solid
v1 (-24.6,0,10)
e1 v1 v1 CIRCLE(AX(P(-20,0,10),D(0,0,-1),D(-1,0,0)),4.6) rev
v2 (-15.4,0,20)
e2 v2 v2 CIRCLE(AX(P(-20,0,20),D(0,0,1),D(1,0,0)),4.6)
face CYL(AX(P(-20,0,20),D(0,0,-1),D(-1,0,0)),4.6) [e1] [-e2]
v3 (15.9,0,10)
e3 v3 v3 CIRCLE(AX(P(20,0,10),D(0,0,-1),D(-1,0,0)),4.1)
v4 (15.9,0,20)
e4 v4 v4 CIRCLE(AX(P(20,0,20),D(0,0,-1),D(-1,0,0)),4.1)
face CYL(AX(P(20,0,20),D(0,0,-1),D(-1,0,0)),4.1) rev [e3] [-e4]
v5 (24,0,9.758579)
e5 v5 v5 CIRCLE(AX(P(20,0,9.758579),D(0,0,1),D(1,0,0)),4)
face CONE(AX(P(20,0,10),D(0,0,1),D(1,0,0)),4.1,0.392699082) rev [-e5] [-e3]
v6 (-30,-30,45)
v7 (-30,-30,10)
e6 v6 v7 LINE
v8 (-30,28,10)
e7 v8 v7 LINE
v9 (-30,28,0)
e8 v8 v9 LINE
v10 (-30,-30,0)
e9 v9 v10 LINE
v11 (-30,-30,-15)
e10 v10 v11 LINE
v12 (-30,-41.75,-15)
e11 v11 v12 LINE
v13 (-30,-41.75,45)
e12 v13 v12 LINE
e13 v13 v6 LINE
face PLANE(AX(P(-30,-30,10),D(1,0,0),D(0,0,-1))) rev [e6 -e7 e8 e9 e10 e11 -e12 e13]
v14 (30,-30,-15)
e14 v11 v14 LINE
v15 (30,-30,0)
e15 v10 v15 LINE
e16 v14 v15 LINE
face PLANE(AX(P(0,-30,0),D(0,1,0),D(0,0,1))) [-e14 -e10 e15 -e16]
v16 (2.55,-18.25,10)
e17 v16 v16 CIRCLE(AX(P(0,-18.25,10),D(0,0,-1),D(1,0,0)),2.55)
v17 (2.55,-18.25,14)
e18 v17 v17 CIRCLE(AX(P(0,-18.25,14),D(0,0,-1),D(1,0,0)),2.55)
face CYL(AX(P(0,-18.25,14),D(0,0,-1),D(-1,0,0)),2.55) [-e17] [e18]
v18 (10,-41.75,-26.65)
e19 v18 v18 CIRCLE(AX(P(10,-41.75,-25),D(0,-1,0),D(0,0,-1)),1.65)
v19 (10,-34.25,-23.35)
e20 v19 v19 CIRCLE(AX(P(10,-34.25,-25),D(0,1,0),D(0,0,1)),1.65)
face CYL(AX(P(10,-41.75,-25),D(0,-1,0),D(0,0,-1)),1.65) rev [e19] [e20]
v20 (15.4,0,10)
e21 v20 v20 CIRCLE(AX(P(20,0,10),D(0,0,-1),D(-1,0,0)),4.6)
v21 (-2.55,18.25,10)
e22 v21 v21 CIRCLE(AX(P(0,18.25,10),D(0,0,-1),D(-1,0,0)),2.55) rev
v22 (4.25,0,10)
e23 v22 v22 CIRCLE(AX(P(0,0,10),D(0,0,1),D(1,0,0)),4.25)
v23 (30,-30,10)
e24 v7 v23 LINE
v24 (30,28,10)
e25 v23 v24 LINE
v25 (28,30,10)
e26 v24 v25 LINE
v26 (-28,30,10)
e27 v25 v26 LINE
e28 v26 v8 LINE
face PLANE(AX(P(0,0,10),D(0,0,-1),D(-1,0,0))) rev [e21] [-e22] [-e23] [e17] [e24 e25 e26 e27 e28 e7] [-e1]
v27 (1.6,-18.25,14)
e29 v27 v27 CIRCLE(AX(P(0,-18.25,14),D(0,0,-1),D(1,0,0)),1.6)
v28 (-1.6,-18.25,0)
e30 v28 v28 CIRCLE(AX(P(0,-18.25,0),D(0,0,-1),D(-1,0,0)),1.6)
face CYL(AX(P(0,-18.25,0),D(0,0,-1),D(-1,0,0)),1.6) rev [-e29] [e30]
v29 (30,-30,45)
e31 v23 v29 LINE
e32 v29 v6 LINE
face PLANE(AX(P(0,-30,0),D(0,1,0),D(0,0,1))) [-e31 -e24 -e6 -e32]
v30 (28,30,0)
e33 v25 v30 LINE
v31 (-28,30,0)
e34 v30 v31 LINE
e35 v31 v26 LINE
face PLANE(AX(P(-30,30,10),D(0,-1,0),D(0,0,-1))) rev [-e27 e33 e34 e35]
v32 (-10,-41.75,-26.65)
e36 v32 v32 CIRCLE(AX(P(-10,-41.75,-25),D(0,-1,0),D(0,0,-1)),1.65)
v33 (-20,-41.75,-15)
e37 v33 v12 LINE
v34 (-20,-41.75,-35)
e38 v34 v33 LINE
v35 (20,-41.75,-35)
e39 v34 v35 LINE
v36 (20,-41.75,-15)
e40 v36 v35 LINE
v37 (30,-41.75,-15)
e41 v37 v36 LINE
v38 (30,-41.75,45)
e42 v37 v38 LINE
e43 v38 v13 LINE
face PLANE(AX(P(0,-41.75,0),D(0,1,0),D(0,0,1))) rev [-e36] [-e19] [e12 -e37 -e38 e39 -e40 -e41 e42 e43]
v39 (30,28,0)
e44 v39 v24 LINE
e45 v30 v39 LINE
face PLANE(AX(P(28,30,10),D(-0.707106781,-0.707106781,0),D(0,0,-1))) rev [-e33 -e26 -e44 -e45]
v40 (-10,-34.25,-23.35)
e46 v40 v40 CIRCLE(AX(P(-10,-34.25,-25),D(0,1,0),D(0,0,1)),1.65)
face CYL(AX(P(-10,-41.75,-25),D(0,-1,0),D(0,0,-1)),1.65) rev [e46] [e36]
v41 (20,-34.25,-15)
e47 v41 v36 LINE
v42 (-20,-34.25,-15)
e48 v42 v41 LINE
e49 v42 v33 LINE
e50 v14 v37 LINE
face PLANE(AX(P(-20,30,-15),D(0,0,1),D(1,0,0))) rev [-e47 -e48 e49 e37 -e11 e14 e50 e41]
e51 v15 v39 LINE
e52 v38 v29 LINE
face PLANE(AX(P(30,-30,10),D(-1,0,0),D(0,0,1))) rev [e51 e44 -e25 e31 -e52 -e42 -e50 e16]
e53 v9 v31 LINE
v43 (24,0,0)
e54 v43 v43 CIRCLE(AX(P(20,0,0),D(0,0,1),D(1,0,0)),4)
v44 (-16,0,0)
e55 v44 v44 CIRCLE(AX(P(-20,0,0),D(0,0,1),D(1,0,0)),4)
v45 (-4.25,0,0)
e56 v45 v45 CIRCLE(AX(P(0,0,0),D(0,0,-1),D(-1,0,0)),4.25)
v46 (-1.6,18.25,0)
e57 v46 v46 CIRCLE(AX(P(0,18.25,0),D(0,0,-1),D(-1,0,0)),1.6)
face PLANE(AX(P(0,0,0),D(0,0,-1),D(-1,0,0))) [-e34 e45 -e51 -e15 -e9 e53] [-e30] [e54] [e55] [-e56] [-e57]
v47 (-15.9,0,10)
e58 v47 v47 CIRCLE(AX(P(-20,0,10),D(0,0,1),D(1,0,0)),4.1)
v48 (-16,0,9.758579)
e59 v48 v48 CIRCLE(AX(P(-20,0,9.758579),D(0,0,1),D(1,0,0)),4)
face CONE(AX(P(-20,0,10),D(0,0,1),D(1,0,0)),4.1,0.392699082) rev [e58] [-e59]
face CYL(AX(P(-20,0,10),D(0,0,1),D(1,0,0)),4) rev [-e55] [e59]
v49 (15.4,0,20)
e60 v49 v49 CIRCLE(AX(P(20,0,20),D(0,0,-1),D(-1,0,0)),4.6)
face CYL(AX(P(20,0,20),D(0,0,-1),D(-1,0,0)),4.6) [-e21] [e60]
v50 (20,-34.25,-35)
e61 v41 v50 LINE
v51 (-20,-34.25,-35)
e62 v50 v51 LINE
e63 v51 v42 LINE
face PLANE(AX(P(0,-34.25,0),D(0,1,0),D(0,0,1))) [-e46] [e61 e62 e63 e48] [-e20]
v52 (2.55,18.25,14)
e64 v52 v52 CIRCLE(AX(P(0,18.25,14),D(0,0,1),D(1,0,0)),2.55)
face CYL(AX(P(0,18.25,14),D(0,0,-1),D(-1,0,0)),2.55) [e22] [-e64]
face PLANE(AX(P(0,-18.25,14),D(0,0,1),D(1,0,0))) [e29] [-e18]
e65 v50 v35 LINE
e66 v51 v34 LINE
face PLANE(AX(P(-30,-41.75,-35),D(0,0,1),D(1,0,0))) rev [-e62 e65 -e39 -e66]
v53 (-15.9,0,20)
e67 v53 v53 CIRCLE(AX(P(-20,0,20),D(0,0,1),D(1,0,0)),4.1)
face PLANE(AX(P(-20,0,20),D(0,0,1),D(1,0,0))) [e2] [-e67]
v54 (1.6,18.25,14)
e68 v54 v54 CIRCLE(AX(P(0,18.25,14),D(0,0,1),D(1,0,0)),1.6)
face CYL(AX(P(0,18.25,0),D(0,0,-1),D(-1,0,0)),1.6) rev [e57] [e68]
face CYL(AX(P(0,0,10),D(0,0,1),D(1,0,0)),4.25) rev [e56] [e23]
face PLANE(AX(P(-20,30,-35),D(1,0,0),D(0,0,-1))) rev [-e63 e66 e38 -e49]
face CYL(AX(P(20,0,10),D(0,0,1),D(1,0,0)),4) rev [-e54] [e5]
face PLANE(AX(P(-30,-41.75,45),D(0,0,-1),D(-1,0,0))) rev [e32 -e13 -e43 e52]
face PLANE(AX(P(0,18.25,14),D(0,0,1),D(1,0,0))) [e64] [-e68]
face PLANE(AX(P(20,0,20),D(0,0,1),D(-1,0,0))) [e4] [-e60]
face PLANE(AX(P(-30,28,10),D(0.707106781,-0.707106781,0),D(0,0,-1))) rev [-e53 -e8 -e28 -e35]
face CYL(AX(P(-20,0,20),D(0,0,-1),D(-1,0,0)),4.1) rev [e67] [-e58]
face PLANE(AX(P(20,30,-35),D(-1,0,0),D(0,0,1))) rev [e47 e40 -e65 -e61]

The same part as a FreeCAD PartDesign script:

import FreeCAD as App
import Part
import Sketcher
from FreeCAD import Vector


def edges_at(feature, points):
    """Names of the edges that pass closest to the given points."""
    edges = feature.Shape.Edges
    near = lambda p: min(range(len(edges)), key=lambda i: edges[i].distToShape(Part.Vertex(*p))[0])
    return sorted({f"Edge{near(p) + 1}" for p in points})

doc = App.newDocument("Part")
body = doc.addObject("PartDesign::Body", "Body")

# Sketch on XY plane
sketch1 = doc.addObject("Sketcher::SketchObject", "Sketch")
body.addObject(sketch1)
sketch1.AttachmentSupport = (doc.XY_Plane, [""])
sketch1.MapMode = "FlatFace"
sketch1.addGeometry([
    Part.LineSegment(Vector(-30, 30, 0), Vector(-30, -30, 0)),
    Part.LineSegment(Vector(-30, -30, 0), Vector(30, -30, 0)),
    Part.LineSegment(Vector(30, -30, 0), Vector(30, 30, 0)),
    Part.LineSegment(Vector(30, 30, 0), Vector(-30, 30, 0)),
], False)
sketch1.addConstraint([
    Sketcher.Constraint("Coincident", 0, 2, 1, 1),
    Sketcher.Constraint("Coincident", 1, 2, 2, 1),
    Sketcher.Constraint("Coincident", 2, 2, 3, 1),
    Sketcher.Constraint("Coincident", 3, 2, 0, 1),
    Sketcher.Constraint("Vertical", 0),
    Sketcher.Constraint("Horizontal", 1),
    Sketcher.Constraint("Vertical", 2),
    Sketcher.Constraint("Horizontal", 3),
    Sketcher.Constraint("Symmetric", 0, 2, 2, 2, -1, 1),
    Sketcher.Constraint("Equal", 3, 0),
    Sketcher.Constraint("DistanceX", 1, 1, 1, 2, 60.0),
])
pad1 = doc.addObject("PartDesign::Pad", "Pad")
body.addObject(pad1)
pad1.Profile = sketch1
pad1.Length = 10

# Sketch on XY plane
sketch2 = doc.addObject("Sketcher::SketchObject", "Sketch001")
body.addObject(sketch2)
sketch2.AttachmentSupport = (doc.XY_Plane, [""])
sketch2.MapMode = "FlatFace"
sketch2.AttachmentOffset = App.Placement(Vector(0, 0, 10), App.Rotation())
sketch2.addGeometry(Part.Circle(Vector(0, 0, 0), Vector(0, 0, 1), 4.2), False)
sketch2.addConstraint([
    Sketcher.Constraint("Coincident", 0, 3, -1, 1),
    Sketcher.Constraint("Diameter", 0, 8.5),
])
doc.recompute()
hole = doc.addObject("PartDesign::Hole", "Hole")
body.addObject(hole)
hole.Profile = sketch2
hole.ThreadType = "None"
hole.Diameter = 8.5
hole.DepthType = "Dimension"
hole.Depth = 20
hole.DrillPoint = "Flat"

# Sketch on XY plane
sketch3 = doc.addObject("Sketcher::SketchObject", "Sketch002")
body.addObject(sketch3)
sketch3.AttachmentSupport = (doc.XY_Plane, [""])
sketch3.MapMode = "FlatFace"
sketch3.AttachmentOffset = App.Placement(Vector(0, 0, 10), App.Rotation())
sketch3.addGeometry([
    Part.Circle(Vector(20, 0, 0), Vector(0, 0, 1), 4),
    Part.Circle(Vector(-20, 0, 0), Vector(0, 0, 1), 4),
], False)
sketch3.addConstraint([
    Sketcher.Constraint("Equal", 0, 1),
    Sketcher.Constraint("Symmetric", 0, 3, 1, 3, -1, 1),
    Sketcher.Constraint("PointOnObject", 0, 3, -1),
    Sketcher.Constraint("Diameter", 0, 8.0),
    Sketcher.Constraint("DistanceX", -1, 1, 0, 3, 20.0),
])
doc.recompute()
hole2 = doc.addObject("PartDesign::Hole", "Hole001")
body.addObject(hole2)
hole2.Profile = sketch3
hole2.ThreadType = "None"
hole2.Diameter = 8
hole2.DepthType = "ThroughAll"
hole2.HoleCutType = "Countersink"
hole2.HoleCutDiameter = 8.2
hole2.HoleCutCountersinkAngle = 45

# Sketch on XY plane
sketch4 = doc.addObject("Sketcher::SketchObject", "Sketch003")
body.addObject(sketch4)
sketch4.AttachmentSupport = (doc.XY_Plane, [""])
sketch4.MapMode = "FlatFace"
sketch4.addGeometry([
    Part.Circle(Vector(0, 18.2, 0), Vector(0, 0, 1), 1.6),
    Part.Circle(Vector(0, -18.2, 0), Vector(0, 0, 1), 1.6),
], False)
sketch4.addConstraint([
    Sketcher.Constraint("Equal", 0, 1),
    Sketcher.Constraint("Symmetric", 0, 3, 1, 3, -1, 1),
    Sketcher.Constraint("PointOnObject", 0, 3, -2),
    Sketcher.Constraint("Diameter", 0, 3.2),
    Sketcher.Constraint("DistanceY", 1, 3, 0, 3, 36.5),
])
doc.recompute()
hole3 = doc.addObject("PartDesign::Hole", "Hole002")
body.addObject(hole3)
hole3.Profile = sketch4
hole3.ThreadType = "None"
hole3.Diameter = 3.2
hole3.DepthType = "ThroughAll"
hole3.Reversed = True

# Sketch on XY plane
sketch5 = doc.addObject("Sketcher::SketchObject", "Sketch004")
body.addObject(sketch5)
sketch5.AttachmentSupport = (doc.XY_Plane, [""])
sketch5.MapMode = "FlatFace"
sketch5.AttachmentOffset = App.Placement(Vector(0, 0, 10), App.Rotation())
sketch5.addGeometry([
    Part.Circle(Vector(-20, 0, 0), Vector(0, 0, 1), 4.6),
    Part.Circle(Vector(-20, 0, 0), Vector(0, 0, 1), 4.1),
], False)
sketch5.addConstraint([
    Sketcher.Constraint("Coincident", 1, 3, 0, 3),
    Sketcher.Constraint("PointOnObject", 0, 3, -1),
    Sketcher.Constraint("Diameter", 0, 9.2),
    Sketcher.Constraint("Diameter", 1, 8.2),
    Sketcher.Constraint("DistanceX", 0, 3, -1, 1, 20.0),
])
pad2 = doc.addObject("PartDesign::Pad", "Pad001")
body.addObject(pad2)
pad2.Profile = sketch5
pad2.Length = 10
doc.recompute()

mirrored = doc.addObject("PartDesign::Mirrored", "Mirrored")
body.addObject(mirrored)
mirrored.Originals = [pad2]
mirrored.MirrorPlane = (doc.YZ_Plane, [""])
body.Tip = mirrored

# Sketch on XY plane
sketch6 = doc.addObject("Sketcher::SketchObject", "Sketch005")
body.addObject(sketch6)
sketch6.AttachmentSupport = (doc.XY_Plane, [""])
sketch6.MapMode = "FlatFace"
sketch6.AttachmentOffset = App.Placement(Vector(0, 0, 14), App.Rotation())
sketch6.addGeometry([
    Part.Circle(Vector(0, 18.2, 0), Vector(0, 0, 1), 2.5),
    Part.Circle(Vector(0, 18.2, 0), Vector(0, 0, 1), 1.6),
], False)
sketch6.addConstraint([
    Sketcher.Constraint("Coincident", 1, 3, 0, 3),
    Sketcher.Constraint("PointOnObject", 0, 3, -2),
    Sketcher.Constraint("Diameter", 0, 5.1),
    Sketcher.Constraint("Diameter", 1, 3.2),
    Sketcher.Constraint("DistanceY", -1, 1, 0, 3, 18.25),
])
pad3 = doc.addObject("PartDesign::Pad", "Pad002")
body.addObject(pad3)
pad3.Profile = sketch6
pad3.Length = 4
pad3.Reversed = True
doc.recompute()

mirrored2 = doc.addObject("PartDesign::Mirrored", "Mirrored001")
body.addObject(mirrored2)
mirrored2.Originals = [pad3]
mirrored2.MirrorPlane = (doc.XZ_Plane, [""])
body.Tip = mirrored2

# Sketch on XZ plane
sketch7 = doc.addObject("Sketcher::SketchObject", "Sketch006")
body.addObject(sketch7)
sketch7.AttachmentSupport = (doc.XZ_Plane, [""])
sketch7.MapMode = "FlatFace"
sketch7.AttachmentOffset = App.Placement(Vector(0, 0, 30), App.Rotation())
sketch7.addGeometry([
    Part.LineSegment(Vector(-30, 45, 0), Vector(-30, -35, 0)),
    Part.LineSegment(Vector(-30, -35, 0), Vector(30, -35, 0)),
    Part.LineSegment(Vector(30, -35, 0), Vector(30, 45, 0)),
    Part.LineSegment(Vector(30, 45, 0), Vector(-30, 45, 0)),
], False)
sketch7.addConstraint([
    Sketcher.Constraint("Coincident", 0, 2, 1, 1),
    Sketcher.Constraint("Coincident", 1, 2, 2, 1),
    Sketcher.Constraint("Coincident", 2, 2, 3, 1),
    Sketcher.Constraint("Coincident", 3, 2, 0, 1),
    Sketcher.Constraint("Vertical", 0),
    Sketcher.Constraint("Horizontal", 1),
    Sketcher.Constraint("Vertical", 2),
    Sketcher.Constraint("Horizontal", 3),
    Sketcher.Constraint("DistanceX", 1, 1, 1, 2, 60.0),
    Sketcher.Constraint("DistanceY", 0, 2, 0, 1, 80.0),
    Sketcher.Constraint("DistanceX", 0, 2, -1, 1, 30.0),
    Sketcher.Constraint("DistanceY", 0, 2, -1, 1, 35.0),
])
pad4 = doc.addObject("PartDesign::Pad", "Pad003")
body.addObject(pad4)
pad4.Profile = sketch7
pad4.Length = 11.75

# Sketch on XZ plane
sketch8 = doc.addObject("Sketcher::SketchObject", "Sketch007")
body.addObject(sketch8)
sketch8.AttachmentSupport = (doc.XZ_Plane, [""])
sketch8.MapMode = "FlatFace"
sketch8.AttachmentOffset = App.Placement(Vector(0, 0, 41.75), App.Rotation())
sketch8.addGeometry([
    Part.LineSegment(Vector(-30, -15, 0), Vector(-30, -35, 0)),  # 0
    Part.LineSegment(Vector(-30, -35, 0), Vector(-20, -35, 0)),  # 1
    Part.LineSegment(Vector(-20, -35, 0), Vector(-20, -15, 0)),  # 2
    Part.LineSegment(Vector(-20, -15, 0), Vector(-30, -15, 0)),  # 3
    Part.LineSegment(Vector(20, -15, 0), Vector(20, -35, 0)),  # 4
    Part.LineSegment(Vector(20, -35, 0), Vector(30, -35, 0)),  # 5
    Part.LineSegment(Vector(30, -35, 0), Vector(30, -15, 0)),  # 6
    Part.LineSegment(Vector(30, -15, 0), Vector(20, -15, 0)),  # 7
], False)
sketch8.addConstraint([
    Sketcher.Constraint("Coincident", 0, 2, 1, 1),
    Sketcher.Constraint("Coincident", 1, 2, 2, 1),
    Sketcher.Constraint("Coincident", 2, 2, 3, 1),
    Sketcher.Constraint("Coincident", 3, 2, 0, 1),
    Sketcher.Constraint("Coincident", 4, 2, 5, 1),
    Sketcher.Constraint("Coincident", 5, 2, 6, 1),
    Sketcher.Constraint("Coincident", 6, 2, 7, 1),
    Sketcher.Constraint("Coincident", 7, 2, 4, 1),
    Sketcher.Constraint("Vertical", 0),
    Sketcher.Constraint("Horizontal", 1),
    Sketcher.Constraint("Vertical", 2),
    Sketcher.Constraint("Horizontal", 3),
    Sketcher.Constraint("Vertical", 4),
    Sketcher.Constraint("Horizontal", 5),
    Sketcher.Constraint("Vertical", 6),
    Sketcher.Constraint("Horizontal", 7),
    Sketcher.Constraint("Symmetric", 1, 2, 4, 2, -2),
    Sketcher.Constraint("Symmetric", 3, 2, 6, 2, -2),
    Sketcher.Constraint("DistanceX", 1, 1, 1, 2, 10.0),
    Sketcher.Constraint("DistanceY", 0, 2, 0, 1, 20.0),
    Sketcher.Constraint("DistanceX", 0, 2, -1, 1, 30.0),
    Sketcher.Constraint("DistanceY", 0, 2, -1, 1, 35.0),
])
pocket1 = doc.addObject("PartDesign::Pocket", "Pocket")
body.addObject(pocket1)
pocket1.Profile = sketch8
pocket1.Type = "ThroughAll"

# Sketch on XZ plane
sketch9 = doc.addObject("Sketcher::SketchObject", "Sketch008")
body.addObject(sketch9)
sketch9.AttachmentSupport = (doc.XZ_Plane, [""])
sketch9.MapMode = "FlatFace"
sketch9.AttachmentOffset = App.Placement(Vector(0, 0, 30), App.Rotation())
sketch9.addGeometry([
    Part.LineSegment(Vector(-20, -35, 0), Vector(-20, -15, 0)),
    Part.LineSegment(Vector(-20, -15, 0), Vector(20, -15, 0)),
    Part.LineSegment(Vector(20, -15, 0), Vector(20, -35, 0)),
    Part.LineSegment(Vector(20, -35, 0), Vector(-20, -35, 0)),
], False)
sketch9.addConstraint([
    Sketcher.Constraint("Coincident", 0, 2, 1, 1),
    Sketcher.Constraint("Coincident", 1, 2, 2, 1),
    Sketcher.Constraint("Coincident", 2, 2, 3, 1),
    Sketcher.Constraint("Coincident", 3, 2, 0, 1),
    Sketcher.Constraint("Vertical", 0),
    Sketcher.Constraint("Horizontal", 1),
    Sketcher.Constraint("Vertical", 2),
    Sketcher.Constraint("Horizontal", 3),
    Sketcher.Constraint("DistanceX", 1, 1, 1, 2, 40.0),
    Sketcher.Constraint("DistanceY", 0, 1, 0, 2, 20.0),
    Sketcher.Constraint("DistanceX", 0, 2, -1, 1, 20.0),
    Sketcher.Constraint("DistanceY", 0, 2, -1, 1, 15.0),
])
pocket2 = doc.addObject("PartDesign::Pocket", "Pocket001")
body.addObject(pocket2)
pocket2.Profile = sketch9
pocket2.Length = 4.25
pocket2.Reversed = True

# Sketch on XZ plane
sketch10 = doc.addObject("Sketcher::SketchObject", "Sketch009")
body.addObject(sketch10)
sketch10.AttachmentSupport = (doc.XZ_Plane, [""])
sketch10.MapMode = "FlatFace"
sketch10.AttachmentOffset = App.Placement(Vector(0, 0, 41.75), App.Rotation())
sketch10.addGeometry([
    Part.Circle(Vector(10, -25, 0), Vector(0, 0, 1), 1.6),
    Part.Circle(Vector(-10, -25, 0), Vector(0, 0, 1), 1.6),
], False)
sketch10.addConstraint([
    Sketcher.Constraint("Equal", 0, 1),
    Sketcher.Constraint("Symmetric", 0, 3, 1, 3, -2),
    Sketcher.Constraint("Diameter", 0, 3.3),
    Sketcher.Constraint("DistanceX", -1, 1, 0, 3, 10.0),
    Sketcher.Constraint("DistanceY", 0, 3, -1, 1, 25.0),
])
doc.recompute()
hole4 = doc.addObject("PartDesign::Hole", "Hole003")
body.addObject(hole4)
hole4.Profile = sketch10
hole4.ThreadType = "None"
hole4.Diameter = 3.3
hole4.DepthType = "ThroughAll"
doc.recompute()

chamfer = doc.addObject("PartDesign::Chamfer", "Chamfer")
body.addObject(chamfer)
chamfer.Base = (hole4, edges_at(hole4, [(-30, 30, 5), (30, 30, 5)]))
chamfer.Size = 2

doc.recompute()
